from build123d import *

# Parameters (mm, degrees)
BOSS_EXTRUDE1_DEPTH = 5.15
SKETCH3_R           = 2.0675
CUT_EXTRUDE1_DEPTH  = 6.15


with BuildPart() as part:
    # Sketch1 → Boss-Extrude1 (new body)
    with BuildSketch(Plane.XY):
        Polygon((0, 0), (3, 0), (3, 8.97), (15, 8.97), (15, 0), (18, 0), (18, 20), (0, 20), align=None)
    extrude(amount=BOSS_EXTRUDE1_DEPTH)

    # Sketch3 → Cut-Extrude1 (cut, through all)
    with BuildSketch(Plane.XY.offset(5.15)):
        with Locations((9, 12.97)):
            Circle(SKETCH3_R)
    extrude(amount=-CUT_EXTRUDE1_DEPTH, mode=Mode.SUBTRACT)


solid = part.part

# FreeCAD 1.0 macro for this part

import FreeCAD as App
import Part
import Sketcher
from FreeCAD import Vector

doc = App.newDocument("Part")
body = doc.addObject("PartDesign::Body", "Body")

sketch1 = body.newObject("Sketcher::SketchObject", "Sketch")
sketch1.AttachmentSupport = (doc.getObject("XY_Plane"), [""])
sketch1.MapMode = "FlatFace"
sketch1.addGeometry([
    Part.LineSegment(Vector(0, 0, 0), Vector(3, 0, 0)),
    Part.LineSegment(Vector(3, 0, 0), Vector(3, 9, 0)),
    Part.LineSegment(Vector(3, 9, 0), Vector(15, 9, 0)),
    Part.LineSegment(Vector(15, 9, 0), Vector(15, 0, 0)),
    Part.LineSegment(Vector(15, 0, 0), Vector(18, 0, 0)),
    Part.LineSegment(Vector(18, 0, 0), Vector(18, 20, 0)),
    Part.LineSegment(Vector(18, 20, 0), Vector(0, 20, 0)),
    Part.LineSegment(Vector(0, 20, 0), Vector(0, 0, 0)),
], False)
sketch1.addConstraint([
    Sketcher.Constraint("Coincident", 0, 2, 1, 1),
    Sketcher.Constraint("Coincident", 1, 2, 2, 1),
    Sketcher.Constraint("Coincident", 2, 2, 3, 1),
    Sketcher.Constraint("Coincident", 3, 2, 4, 1),
    Sketcher.Constraint("Coincident", 4, 2, 5, 1),
    Sketcher.Constraint("Coincident", 5, 2, 6, 1),
    Sketcher.Constraint("Coincident", 6, 2, 7, 1),
    Sketcher.Constraint("Coincident", 7, 2, 0, 1),
    Sketcher.Constraint("Horizontal", 0),
    Sketcher.Constraint("Vertical", 1),
    Sketcher.Constraint("Horizontal", 2),
    Sketcher.Constraint("Vertical", 3),
    Sketcher.Constraint("Horizontal", 4),
    Sketcher.Constraint("Vertical", 5),
    Sketcher.Constraint("Horizontal", 6),
    Sketcher.Constraint("Vertical", 7),
    Sketcher.Constraint("Coincident", 7, 2, -1, 1),
    Sketcher.Constraint("PointOnObject", 3, 2, -1),
    Sketcher.Constraint("Equal", 0, 4),
    Sketcher.Constraint("DistanceX", 0, 1, 0, 2, 3.0),
    Sketcher.Constraint("DistanceX", 2, 1, 2, 2, 12.0),
    Sketcher.Constraint("DistanceY", 5, 1, 5, 2, 20.0),
    Sketcher.Constraint("DistanceY", 1, 1, 1, 2, 8.97),
])
pad1 = body.newObject("PartDesign::Pad", "Pad")
pad1.Profile = sketch1
pad1.Length = 5.15

sketch2 = body.newObject("Sketcher::SketchObject", "Sketch001")
sketch2.AttachmentSupport = (doc.getObject("XY_Plane"), [""])
sketch2.MapMode = "FlatFace"
sketch2.AttachmentOffset = App.Placement(Vector(0, 0, 5.15), App.Rotation())
sketch2.addGeometry(Part.Circle(Vector(9, 13, 0), Vector(0, 0, 1), 2.1), False)
sketch2.addConstraint([
    Sketcher.Constraint("Diameter", 0, 4.135),
    Sketcher.Constraint("DistanceX", -1, 1, 0, 3, 9.0),
    Sketcher.Constraint("DistanceY", -1, 1, 0, 3, 12.97),
])
pocket1 = body.newObject("PartDesign::Pocket", "Pocket")
pocket1.Profile = sketch2
pocket1.Type = "ThroughAll"

doc.recompute()
